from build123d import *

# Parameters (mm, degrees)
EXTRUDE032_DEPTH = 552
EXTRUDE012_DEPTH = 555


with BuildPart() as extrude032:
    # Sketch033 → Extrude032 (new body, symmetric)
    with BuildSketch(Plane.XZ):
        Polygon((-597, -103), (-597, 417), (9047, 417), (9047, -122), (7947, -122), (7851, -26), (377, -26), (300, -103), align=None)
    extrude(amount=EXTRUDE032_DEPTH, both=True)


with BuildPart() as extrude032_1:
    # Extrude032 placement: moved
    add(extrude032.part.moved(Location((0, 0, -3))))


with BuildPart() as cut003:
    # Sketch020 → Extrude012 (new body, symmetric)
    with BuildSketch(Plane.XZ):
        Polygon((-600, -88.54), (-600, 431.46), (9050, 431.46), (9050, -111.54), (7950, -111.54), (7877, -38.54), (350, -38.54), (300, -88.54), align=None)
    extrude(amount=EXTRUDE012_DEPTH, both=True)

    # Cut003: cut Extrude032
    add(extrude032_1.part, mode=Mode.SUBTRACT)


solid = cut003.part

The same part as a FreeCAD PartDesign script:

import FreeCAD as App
import Part
import Sketcher

V = App.Vector
Q = App.Units.Quantity


def add_polygon(sketch, points):
    """Adds a closed chain of lines whose ends are joined by coincident constraints."""
    first, n = sketch.GeometryCount, len(points)
    for a, b in zip(points, points[1:] + points[:1]):
        sketch.addGeometry(Part.LineSegment(App.Vector(*a, 0), App.Vector(*b, 0)), False)
    for i in range(n):
        sketch.addConstraint(Sketcher.Constraint("Coincident", first + i, 2, first + (i + 1) % n, 1))

doc = App.newDocument("Part")
body = doc.addObject("PartDesign::Body", "Body")

sketch1 = doc.addObject("Sketcher::SketchObject", "Sketch")
body.addObject(sketch1)
sketch1.AttachmentSupport = (doc.XZ_Plane, [""])
sketch1.MapMode = "FlatFace"
add_polygon(sketch1, [(-597, 417), (-597, -103), (300, -103), (377, -26), (7851, -26), (7947, -122), (9047, -122), (9047, 417)])
sketch1.addConstraint(Sketcher.Constraint("Vertical", 0))
sketch1.addConstraint(Sketcher.Constraint("Horizontal", 1))
sketch1.addConstraint(Sketcher.Constraint("Horizontal", 3))
sketch1.addConstraint(Sketcher.Constraint("Horizontal", 5))
sketch1.addConstraint(Sketcher.Constraint("Vertical", 6))
sketch1.addConstraint(Sketcher.Constraint("Horizontal", 7))
sketch1.addConstraint(Sketcher.Constraint("Perpendicular", 2, 4))
sketch1.addConstraint(Sketcher.Constraint("DistanceX", 1, 1, 1, 2, 897.0))
sketch1.addConstraint(Sketcher.Constraint("DistanceX", 3, 1, 3, 2, 7474.0))
sketch1.addConstraint(Sketcher.Constraint("DistanceX", 5, 1, 5, 2, 1100.0))
sketch1.addConstraint(Sketcher.Constraint("DistanceX", 7, 2, 7, 1, 9644.0))
sketch1.addConstraint(Sketcher.Constraint("DistanceY", 0, 2, 0, 1, 520.0))
sketch1.addConstraint(Sketcher.Constraint("DistanceY", 6, 1, 6, 2, 539.0))
sketch1.addConstraint(Sketcher.Constraint("Angle", 2, Q("45 deg")))
sketch1.addConstraint(Sketcher.Constraint("DistanceX", 0, 2, -1, 1, 597.0))
sketch1.addConstraint(Sketcher.Constraint("DistanceY", 0, 2, -1, 1, 103.0))
pad1 = doc.addObject("PartDesign::Pad", "Pad")
body.addObject(pad1)
pad1.Profile = sketch1
pad1.Length = 1104
pad1.Midplane = True
body2 = doc.addObject("PartDesign::Body", "Body001")
doc.recompute()

body.Placement = App.Placement(V(0, 0, -3), App.Rotation(V(0, 0, 1), 0))
boolean = doc.addObject("PartDesign::Boolean", "Boolean")
body2.addObject(boolean)
boolean.Type = "Fuse"
boolean.addObjects([body])
body3 = doc.addObject("PartDesign::Body", "Body002")

sketch2 = doc.addObject("Sketcher::SketchObject", "Sketch001")
body3.addObject(sketch2)
sketch2.AttachmentSupport = (doc.getObject("XZ_Plane002"), [""])
sketch2.MapMode = "FlatFace"
add_polygon(sketch2, [(-600, 431), (-600, -89), (300, -89), (350, -39), (7877, -39), (7950, -112), (9050, -112), (9050, 431)])
sketch2.addConstraint(Sketcher.Constraint("Vertical", 0))
sketch2.addConstraint(Sketcher.Constraint("Horizontal", 1))
sketch2.addConstraint(Sketcher.Constraint("Horizontal", 3))
sketch2.addConstraint(Sketcher.Constraint("Horizontal", 5))
sketch2.addConstraint(Sketcher.Constraint("Vertical", 6))
sketch2.addConstraint(Sketcher.Constraint("Horizontal", 7))
sketch2.addConstraint(Sketcher.Constraint("Perpendicular", 2, 4))
sketch2.addConstraint(Sketcher.Constraint("DistanceX", 1, 1, 1, 2, 900.0))
sketch2.addConstraint(Sketcher.Constraint("DistanceX", 3, 1, 3, 2, 7527.0))
sketch2.addConstraint(Sketcher.Constraint("DistanceX", 5, 1, 5, 2, 1100.0))
sketch2.addConstraint(Sketcher.Constraint("DistanceX", 7, 2, 7, 1, 9650.0))
sketch2.addConstraint(Sketcher.Constraint("DistanceY", 0, 2, 0, 1, 520.0))
sketch2.addConstraint(Sketcher.Constraint("DistanceY", 6, 1, 6, 2, 543.0))
sketch2.addConstraint(Sketcher.Constraint("Angle", 2, Q("45 deg")))
sketch2.addConstraint(Sketcher.Constraint("DistanceX", 0, 2, -1, 1, 600.0))
sketch2.addConstraint(Sketcher.Constraint("DistanceY", 0, 2, -1, 1, 88.54))
pad2 = doc.addObject("PartDesign::Pad", "Pad001")
body3.addObject(pad2)
pad2.Profile = sketch2
pad2.Length = 1110
pad2.Midplane = True
doc.recompute()

boolean2 = doc.addObject("PartDesign::Boolean", "Boolean001")
body3.addObject(boolean2)
boolean2.Type = "Cut"
boolean2.addObjects([body2])

doc.recompute()
